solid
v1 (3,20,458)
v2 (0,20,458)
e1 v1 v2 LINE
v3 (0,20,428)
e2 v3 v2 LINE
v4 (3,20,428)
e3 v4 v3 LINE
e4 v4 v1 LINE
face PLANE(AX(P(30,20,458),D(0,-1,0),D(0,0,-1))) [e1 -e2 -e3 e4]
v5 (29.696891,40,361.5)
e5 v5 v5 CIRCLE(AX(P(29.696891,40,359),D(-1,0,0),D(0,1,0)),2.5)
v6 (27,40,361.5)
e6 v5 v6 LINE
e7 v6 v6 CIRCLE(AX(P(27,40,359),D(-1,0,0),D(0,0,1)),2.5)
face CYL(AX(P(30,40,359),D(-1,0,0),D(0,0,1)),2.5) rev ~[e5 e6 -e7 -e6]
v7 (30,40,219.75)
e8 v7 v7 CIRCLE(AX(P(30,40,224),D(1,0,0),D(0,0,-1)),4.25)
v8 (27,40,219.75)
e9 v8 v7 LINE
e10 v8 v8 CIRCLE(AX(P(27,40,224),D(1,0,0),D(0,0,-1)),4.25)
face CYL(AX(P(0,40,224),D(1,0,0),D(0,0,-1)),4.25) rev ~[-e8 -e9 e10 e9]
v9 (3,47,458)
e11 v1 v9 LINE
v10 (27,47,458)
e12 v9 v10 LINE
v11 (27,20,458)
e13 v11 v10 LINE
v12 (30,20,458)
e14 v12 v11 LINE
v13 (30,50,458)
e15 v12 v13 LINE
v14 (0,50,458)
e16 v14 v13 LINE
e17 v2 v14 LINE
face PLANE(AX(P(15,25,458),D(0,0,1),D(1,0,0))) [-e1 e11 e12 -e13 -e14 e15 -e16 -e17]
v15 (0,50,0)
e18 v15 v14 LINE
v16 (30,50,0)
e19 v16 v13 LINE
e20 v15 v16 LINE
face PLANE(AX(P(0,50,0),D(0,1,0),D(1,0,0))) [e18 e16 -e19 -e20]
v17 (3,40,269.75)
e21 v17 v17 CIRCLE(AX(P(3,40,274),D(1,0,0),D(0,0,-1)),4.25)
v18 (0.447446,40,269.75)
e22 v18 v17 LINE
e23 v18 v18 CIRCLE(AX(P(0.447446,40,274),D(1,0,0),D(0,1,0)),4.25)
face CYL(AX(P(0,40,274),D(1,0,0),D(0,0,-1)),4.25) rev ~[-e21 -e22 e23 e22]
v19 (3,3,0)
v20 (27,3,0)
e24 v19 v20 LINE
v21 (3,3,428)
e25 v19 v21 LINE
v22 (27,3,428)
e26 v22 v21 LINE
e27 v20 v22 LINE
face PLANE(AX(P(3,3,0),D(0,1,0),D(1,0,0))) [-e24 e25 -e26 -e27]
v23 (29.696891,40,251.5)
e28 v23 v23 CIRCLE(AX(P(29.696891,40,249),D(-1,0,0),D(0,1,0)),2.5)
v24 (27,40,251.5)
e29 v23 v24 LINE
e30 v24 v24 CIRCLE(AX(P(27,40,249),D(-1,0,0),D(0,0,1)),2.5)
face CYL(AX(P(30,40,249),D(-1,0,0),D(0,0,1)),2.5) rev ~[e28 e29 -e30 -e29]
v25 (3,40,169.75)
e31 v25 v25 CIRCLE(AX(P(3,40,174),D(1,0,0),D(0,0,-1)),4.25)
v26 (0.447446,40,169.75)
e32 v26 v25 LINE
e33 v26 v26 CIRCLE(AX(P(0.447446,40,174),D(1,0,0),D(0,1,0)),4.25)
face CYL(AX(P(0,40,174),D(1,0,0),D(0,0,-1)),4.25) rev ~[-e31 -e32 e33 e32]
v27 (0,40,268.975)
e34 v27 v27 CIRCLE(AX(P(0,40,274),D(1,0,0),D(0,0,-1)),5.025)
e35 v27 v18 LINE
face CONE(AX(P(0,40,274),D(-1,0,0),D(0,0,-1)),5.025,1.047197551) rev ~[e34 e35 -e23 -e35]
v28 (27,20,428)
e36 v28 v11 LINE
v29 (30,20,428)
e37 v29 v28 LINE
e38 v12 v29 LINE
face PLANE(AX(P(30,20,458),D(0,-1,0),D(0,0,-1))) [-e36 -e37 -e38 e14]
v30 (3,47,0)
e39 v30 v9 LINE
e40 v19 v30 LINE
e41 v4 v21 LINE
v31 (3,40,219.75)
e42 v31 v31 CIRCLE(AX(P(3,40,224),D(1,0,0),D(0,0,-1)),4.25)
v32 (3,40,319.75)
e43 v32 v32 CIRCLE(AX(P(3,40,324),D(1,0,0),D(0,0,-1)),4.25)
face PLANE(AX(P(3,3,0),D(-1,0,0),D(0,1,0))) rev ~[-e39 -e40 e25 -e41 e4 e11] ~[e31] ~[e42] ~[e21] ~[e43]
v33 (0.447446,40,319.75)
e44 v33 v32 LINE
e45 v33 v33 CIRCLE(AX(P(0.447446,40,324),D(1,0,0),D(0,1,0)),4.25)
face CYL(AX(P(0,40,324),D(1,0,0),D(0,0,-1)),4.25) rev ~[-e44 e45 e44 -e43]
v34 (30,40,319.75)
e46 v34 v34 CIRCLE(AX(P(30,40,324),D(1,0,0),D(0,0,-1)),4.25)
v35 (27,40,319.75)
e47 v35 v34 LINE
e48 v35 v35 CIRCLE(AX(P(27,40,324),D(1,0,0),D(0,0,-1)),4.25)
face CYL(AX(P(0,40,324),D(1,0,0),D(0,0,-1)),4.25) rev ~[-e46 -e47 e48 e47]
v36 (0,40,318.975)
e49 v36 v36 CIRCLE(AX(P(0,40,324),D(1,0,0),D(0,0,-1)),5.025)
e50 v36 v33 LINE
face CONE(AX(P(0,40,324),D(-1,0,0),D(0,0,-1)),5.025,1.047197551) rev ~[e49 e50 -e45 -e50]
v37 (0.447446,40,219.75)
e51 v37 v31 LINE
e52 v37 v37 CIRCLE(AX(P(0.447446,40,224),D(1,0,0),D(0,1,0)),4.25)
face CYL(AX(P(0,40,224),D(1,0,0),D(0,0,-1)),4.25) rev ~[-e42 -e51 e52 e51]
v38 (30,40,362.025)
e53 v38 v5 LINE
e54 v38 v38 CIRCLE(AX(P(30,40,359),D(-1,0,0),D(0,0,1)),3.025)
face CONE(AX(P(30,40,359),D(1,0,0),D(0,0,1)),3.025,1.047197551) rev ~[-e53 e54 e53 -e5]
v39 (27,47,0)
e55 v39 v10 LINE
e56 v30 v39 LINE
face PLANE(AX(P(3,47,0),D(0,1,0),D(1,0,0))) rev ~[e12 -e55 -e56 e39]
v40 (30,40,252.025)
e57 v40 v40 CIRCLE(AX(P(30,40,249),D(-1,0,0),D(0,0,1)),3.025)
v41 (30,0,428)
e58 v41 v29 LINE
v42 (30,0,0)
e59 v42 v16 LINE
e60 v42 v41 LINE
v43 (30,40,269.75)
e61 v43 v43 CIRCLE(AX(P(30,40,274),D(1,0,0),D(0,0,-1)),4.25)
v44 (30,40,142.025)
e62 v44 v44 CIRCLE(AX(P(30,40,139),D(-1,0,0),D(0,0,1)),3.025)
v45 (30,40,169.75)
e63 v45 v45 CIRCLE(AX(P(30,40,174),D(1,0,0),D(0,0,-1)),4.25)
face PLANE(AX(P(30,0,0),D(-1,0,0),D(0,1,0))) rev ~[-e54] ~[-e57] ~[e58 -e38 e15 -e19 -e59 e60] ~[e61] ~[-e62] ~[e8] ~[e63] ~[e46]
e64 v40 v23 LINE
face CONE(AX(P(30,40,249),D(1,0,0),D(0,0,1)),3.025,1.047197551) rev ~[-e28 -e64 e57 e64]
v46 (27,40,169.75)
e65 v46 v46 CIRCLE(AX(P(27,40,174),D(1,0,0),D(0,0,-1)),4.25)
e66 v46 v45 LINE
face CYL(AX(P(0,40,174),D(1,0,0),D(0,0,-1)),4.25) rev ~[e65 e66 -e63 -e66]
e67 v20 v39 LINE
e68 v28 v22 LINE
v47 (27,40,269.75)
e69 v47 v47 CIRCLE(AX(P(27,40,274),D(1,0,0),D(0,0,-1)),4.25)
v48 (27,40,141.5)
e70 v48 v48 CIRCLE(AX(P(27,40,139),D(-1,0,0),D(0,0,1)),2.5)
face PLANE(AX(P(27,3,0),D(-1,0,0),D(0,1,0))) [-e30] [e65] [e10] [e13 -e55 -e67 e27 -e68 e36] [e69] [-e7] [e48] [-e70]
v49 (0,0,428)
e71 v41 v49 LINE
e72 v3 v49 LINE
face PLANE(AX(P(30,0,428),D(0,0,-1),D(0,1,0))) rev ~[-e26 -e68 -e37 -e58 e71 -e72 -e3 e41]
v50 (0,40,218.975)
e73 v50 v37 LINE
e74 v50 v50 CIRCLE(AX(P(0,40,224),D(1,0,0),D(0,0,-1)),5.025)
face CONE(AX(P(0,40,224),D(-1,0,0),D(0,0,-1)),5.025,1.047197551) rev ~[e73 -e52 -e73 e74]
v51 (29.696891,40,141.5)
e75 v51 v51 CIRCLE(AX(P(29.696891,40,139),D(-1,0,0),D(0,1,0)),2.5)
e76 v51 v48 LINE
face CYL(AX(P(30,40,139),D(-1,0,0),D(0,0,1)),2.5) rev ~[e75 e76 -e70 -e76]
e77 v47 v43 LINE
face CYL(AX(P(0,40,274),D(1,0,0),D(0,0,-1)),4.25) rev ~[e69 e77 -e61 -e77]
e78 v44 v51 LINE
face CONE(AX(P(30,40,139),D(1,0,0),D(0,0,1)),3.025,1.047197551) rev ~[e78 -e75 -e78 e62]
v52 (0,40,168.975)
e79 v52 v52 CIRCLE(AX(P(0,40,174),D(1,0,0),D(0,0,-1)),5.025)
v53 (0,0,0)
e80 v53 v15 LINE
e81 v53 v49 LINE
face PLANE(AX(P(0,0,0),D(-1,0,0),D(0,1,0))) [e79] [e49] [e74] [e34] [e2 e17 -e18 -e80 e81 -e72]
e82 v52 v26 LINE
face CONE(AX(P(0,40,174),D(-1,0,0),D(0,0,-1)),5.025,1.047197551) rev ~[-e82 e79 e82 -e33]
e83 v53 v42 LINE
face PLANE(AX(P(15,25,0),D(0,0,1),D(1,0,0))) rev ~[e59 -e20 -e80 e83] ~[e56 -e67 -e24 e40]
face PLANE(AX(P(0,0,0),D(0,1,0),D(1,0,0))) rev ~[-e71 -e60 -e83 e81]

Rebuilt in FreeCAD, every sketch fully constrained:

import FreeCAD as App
import Part
import Sketcher

V = App.Vector
Q = App.Units.Quantity

doc = App.newDocument("Part")
body = doc.addObject("PartDesign::Body", "Body")

# Sketch on XY plane
sketch1 = body.newObject("Sketcher::SketchObject", "Sketch")
sketch1.AttachmentSupport = (doc.getObject("XY_Plane"), [""])
sketch1.MapMode = "FlatFace"
sketch1.addGeometry([
    Part.LineSegment(V(0, 50, 0), V(0, 0, 0)),  # 0
    Part.LineSegment(V(0, 0, 0), V(30, 0, 0)),  # 1
    Part.LineSegment(V(30, 0, 0), V(30, 50, 0)),  # 2
    Part.LineSegment(V(30, 50, 0), V(0, 50, 0)),  # 3
    Part.LineSegment(V(27, 3, 0), V(3, 3, 0)),  # 4
    Part.LineSegment(V(3, 3, 0), V(3, 47, 0)),  # 5
    Part.LineSegment(V(3, 47, 0), V(27, 47, 0)),  # 6
    Part.LineSegment(V(27, 47, 0), V(27, 3, 0)),  # 7
], False)
sketch1.addConstraint([
    Sketcher.Constraint("Coincident", 0, 2, 1, 1),
    Sketcher.Constraint("Coincident", 1, 2, 2, 1),
    Sketcher.Constraint("Coincident", 2, 2, 3, 1),
    Sketcher.Constraint("Coincident", 3, 2, 0, 1),
    Sketcher.Constraint("Coincident", 4, 2, 5, 1),
    Sketcher.Constraint("Coincident", 5, 2, 6, 1),
    Sketcher.Constraint("Coincident", 6, 2, 7, 1),
    Sketcher.Constraint("Coincident", 7, 2, 4, 1),
    Sketcher.Constraint("Vertical", 0),
    Sketcher.Constraint("Horizontal", 1),
    Sketcher.Constraint("Vertical", 2),
    Sketcher.Constraint("Horizontal", 3),
    Sketcher.Constraint("Horizontal", 4),
    Sketcher.Constraint("Vertical", 5),
    Sketcher.Constraint("Horizontal", 6),
    Sketcher.Constraint("Vertical", 7),
    Sketcher.Constraint("Coincident", 0, 2, -1, 1),
    Sketcher.Constraint("DistanceX", 1, 1, 1, 2, Q("30 mm")),
    Sketcher.Constraint("DistanceX", 4, 2, 4, 1, Q("24 mm")),
    Sketcher.Constraint("DistanceY", 0, 2, 0, 1, Q("50 mm")),
    Sketcher.Constraint("DistanceY", 5, 1, 5, 2, Q("44 mm")),
    Sketcher.Constraint("DistanceX", -1, 1, 4, 2, Q("3 mm")),
    Sketcher.Constraint("DistanceY", -1, 1, 4, 2, Q("3 mm")),
])
pad1 = body.newObject("PartDesign::Pad", "Pad")
pad1.Profile = sketch1
pad1.Length = 458

# Sketch on YZ plane
sketch2 = body.newObject("Sketcher::SketchObject", "Sketch001")
sketch2.AttachmentSupport = (doc.getObject("YZ_Plane"), [""])
sketch2.MapMode = "FlatFace"
sketch2.AttachmentOffset = App.Placement(V(0, 0, 30), App.Rotation())
sketch2.addGeometry([
    Part.LineSegment(V(20, 458, 0), V(0, 458, 0)),
    Part.LineSegment(V(0, 458, 0), V(0, 428, 0)),
    Part.LineSegment(V(0, 428, 0), V(20, 428, 0)),
    Part.LineSegment(V(20, 428, 0), V(20, 458, 0)),
], False)
sketch2.addConstraint([
    Sketcher.Constraint("Coincident", 0, 2, 1, 1),
    Sketcher.Constraint("Coincident", 1, 2, 2, 1),
    Sketcher.Constraint("Coincident", 2, 2, 3, 1),
    Sketcher.Constraint("Coincident", 3, 2, 0, 1),
    Sketcher.Constraint("Horizontal", 0),
    Sketcher.Constraint("Vertical", 1),
    Sketcher.Constraint("Horizontal", 2),
    Sketcher.Constraint("Vertical", 3),
    Sketcher.Constraint("PointOnObject", 0, 2, -2),
    Sketcher.Constraint("DistanceX", 0, 2, 0, 1, Q("20 mm")),
    Sketcher.Constraint("DistanceY", 1, 2, 1, 1, Q("30 mm")),
    Sketcher.Constraint("DistanceY", -1, 1, 0, 2, Q("458 mm")),
])
pocket1 = body.newObject("PartDesign::Pocket", "Pocket")
pocket1.Profile = sketch2
pocket1.Type = "ThroughAll"

# Sketch on YZ plane
sketch3 = body.newObject("Sketcher::SketchObject", "Sketch002")
sketch3.AttachmentSupport = (doc.getObject("YZ_Plane"), [""])
sketch3.MapMode = "FlatFace"
sketch3.AttachmentOffset = App.Placement(V(0, 0, 30), App.Rotation())
sketch3.addGeometry([
    Part.Circle(V(40, 249, 0), V(0, 0, 1), 2.5),
    Part.Circle(V(40, 359, 0), V(0, 0, 1), 2.5),
    Part.Circle(V(40, 139, 0), V(0, 0, 1), 2.5),
], False)
sketch3.addConstraint([
    Sketcher.Constraint("Equal", 0, 1),
    Sketcher.Constraint("Equal", 1, 2),
    Sketcher.Constraint("Vertical", 0, 3, 1, 3),
    Sketcher.Constraint("Vertical", 1, 3, 2, 3),
    Sketcher.Constraint("Diameter", 0, Q("5 mm")),
    Sketcher.Constraint("DistanceX", -1, 1, 0, 3, Q("40 mm")),
    Sketcher.Constraint("DistanceY", -1, 1, 0, 3, Q("249 mm")),
    Sketcher.Constraint("DistanceY", -1, 1, 1, 3, Q("359 mm")),
    Sketcher.Constraint("DistanceY", -1, 1, 2, 3, Q("139 mm")),
])
doc.recompute()
hole = body.newObject("PartDesign::Hole", "Hole")
hole.Profile = sketch3
hole.ThreadType = "None"
hole.Diameter = 5
hole.DepthType = "Dimension"
hole.Depth = 17
hole.DrillPoint = "Angled"
hole.DrillPointAngle = 118
hole.HoleCutType = "Countersink"
hole.HoleCutDiameter = 6.05
hole.HoleCutCountersinkAngle = 120

# Sketch on YZ plane
sketch4 = body.newObject("Sketcher::SketchObject", "Sketch003")
sketch4.AttachmentSupport = (doc.getObject("YZ_Plane"), [""])
sketch4.MapMode = "FlatFace"
sketch4.addGeometry([
    Part.Circle(V(40, 224, 0), V(0, 0, 1), 4.2),
    Part.Circle(V(40, 174, 0), V(0, 0, 1), 4.2),
    Part.Circle(V(40, 324, 0), V(0, 0, 1), 4.2),
    Part.Circle(V(40, 274, 0), V(0, 0, 1), 4.2),
], False)
sketch4.addConstraint([
    Sketcher.Constraint("Equal", 0, 1),
    Sketcher.Constraint("Equal", 1, 2),
    Sketcher.Constraint("Equal", 2, 3),
    Sketcher.Constraint("Vertical", 0, 3, 1, 3),
    Sketcher.Constraint("Vertical", 1, 3, 2, 3),
    Sketcher.Constraint("Vertical", 2, 3, 3, 3),
    Sketcher.Constraint("Diameter", 0, Q("8.5 mm")),
    Sketcher.Constraint("DistanceX", -1, 1, 0, 3, Q("40 mm")),
    Sketcher.Constraint("DistanceY", -1, 1, 0, 3, Q("224 mm")),
    Sketcher.Constraint("DistanceY", -1, 1, 1, 3, Q("174 mm")),
    Sketcher.Constraint("DistanceY", -1, 1, 2, 3, Q("324 mm")),
    Sketcher.Constraint("DistanceY", -1, 1, 3, 3, Q("274 mm")),
])
doc.recompute()
hole2 = body.newObject("PartDesign::Hole", "Hole001")
hole2.Profile = sketch4
hole2.ThreadType = "None"
hole2.Diameter = 8.5
hole2.DepthType = "Dimension"
hole2.Depth = 47.5
hole2.DrillPoint = "Angled"
hole2.DrillPointAngle = 118
hole2.HoleCutType = "Countersink"
hole2.HoleCutDiameter = 10.05
hole2.HoleCutCountersinkAngle = 120
hole2.Reversed = True

doc.recompute()
